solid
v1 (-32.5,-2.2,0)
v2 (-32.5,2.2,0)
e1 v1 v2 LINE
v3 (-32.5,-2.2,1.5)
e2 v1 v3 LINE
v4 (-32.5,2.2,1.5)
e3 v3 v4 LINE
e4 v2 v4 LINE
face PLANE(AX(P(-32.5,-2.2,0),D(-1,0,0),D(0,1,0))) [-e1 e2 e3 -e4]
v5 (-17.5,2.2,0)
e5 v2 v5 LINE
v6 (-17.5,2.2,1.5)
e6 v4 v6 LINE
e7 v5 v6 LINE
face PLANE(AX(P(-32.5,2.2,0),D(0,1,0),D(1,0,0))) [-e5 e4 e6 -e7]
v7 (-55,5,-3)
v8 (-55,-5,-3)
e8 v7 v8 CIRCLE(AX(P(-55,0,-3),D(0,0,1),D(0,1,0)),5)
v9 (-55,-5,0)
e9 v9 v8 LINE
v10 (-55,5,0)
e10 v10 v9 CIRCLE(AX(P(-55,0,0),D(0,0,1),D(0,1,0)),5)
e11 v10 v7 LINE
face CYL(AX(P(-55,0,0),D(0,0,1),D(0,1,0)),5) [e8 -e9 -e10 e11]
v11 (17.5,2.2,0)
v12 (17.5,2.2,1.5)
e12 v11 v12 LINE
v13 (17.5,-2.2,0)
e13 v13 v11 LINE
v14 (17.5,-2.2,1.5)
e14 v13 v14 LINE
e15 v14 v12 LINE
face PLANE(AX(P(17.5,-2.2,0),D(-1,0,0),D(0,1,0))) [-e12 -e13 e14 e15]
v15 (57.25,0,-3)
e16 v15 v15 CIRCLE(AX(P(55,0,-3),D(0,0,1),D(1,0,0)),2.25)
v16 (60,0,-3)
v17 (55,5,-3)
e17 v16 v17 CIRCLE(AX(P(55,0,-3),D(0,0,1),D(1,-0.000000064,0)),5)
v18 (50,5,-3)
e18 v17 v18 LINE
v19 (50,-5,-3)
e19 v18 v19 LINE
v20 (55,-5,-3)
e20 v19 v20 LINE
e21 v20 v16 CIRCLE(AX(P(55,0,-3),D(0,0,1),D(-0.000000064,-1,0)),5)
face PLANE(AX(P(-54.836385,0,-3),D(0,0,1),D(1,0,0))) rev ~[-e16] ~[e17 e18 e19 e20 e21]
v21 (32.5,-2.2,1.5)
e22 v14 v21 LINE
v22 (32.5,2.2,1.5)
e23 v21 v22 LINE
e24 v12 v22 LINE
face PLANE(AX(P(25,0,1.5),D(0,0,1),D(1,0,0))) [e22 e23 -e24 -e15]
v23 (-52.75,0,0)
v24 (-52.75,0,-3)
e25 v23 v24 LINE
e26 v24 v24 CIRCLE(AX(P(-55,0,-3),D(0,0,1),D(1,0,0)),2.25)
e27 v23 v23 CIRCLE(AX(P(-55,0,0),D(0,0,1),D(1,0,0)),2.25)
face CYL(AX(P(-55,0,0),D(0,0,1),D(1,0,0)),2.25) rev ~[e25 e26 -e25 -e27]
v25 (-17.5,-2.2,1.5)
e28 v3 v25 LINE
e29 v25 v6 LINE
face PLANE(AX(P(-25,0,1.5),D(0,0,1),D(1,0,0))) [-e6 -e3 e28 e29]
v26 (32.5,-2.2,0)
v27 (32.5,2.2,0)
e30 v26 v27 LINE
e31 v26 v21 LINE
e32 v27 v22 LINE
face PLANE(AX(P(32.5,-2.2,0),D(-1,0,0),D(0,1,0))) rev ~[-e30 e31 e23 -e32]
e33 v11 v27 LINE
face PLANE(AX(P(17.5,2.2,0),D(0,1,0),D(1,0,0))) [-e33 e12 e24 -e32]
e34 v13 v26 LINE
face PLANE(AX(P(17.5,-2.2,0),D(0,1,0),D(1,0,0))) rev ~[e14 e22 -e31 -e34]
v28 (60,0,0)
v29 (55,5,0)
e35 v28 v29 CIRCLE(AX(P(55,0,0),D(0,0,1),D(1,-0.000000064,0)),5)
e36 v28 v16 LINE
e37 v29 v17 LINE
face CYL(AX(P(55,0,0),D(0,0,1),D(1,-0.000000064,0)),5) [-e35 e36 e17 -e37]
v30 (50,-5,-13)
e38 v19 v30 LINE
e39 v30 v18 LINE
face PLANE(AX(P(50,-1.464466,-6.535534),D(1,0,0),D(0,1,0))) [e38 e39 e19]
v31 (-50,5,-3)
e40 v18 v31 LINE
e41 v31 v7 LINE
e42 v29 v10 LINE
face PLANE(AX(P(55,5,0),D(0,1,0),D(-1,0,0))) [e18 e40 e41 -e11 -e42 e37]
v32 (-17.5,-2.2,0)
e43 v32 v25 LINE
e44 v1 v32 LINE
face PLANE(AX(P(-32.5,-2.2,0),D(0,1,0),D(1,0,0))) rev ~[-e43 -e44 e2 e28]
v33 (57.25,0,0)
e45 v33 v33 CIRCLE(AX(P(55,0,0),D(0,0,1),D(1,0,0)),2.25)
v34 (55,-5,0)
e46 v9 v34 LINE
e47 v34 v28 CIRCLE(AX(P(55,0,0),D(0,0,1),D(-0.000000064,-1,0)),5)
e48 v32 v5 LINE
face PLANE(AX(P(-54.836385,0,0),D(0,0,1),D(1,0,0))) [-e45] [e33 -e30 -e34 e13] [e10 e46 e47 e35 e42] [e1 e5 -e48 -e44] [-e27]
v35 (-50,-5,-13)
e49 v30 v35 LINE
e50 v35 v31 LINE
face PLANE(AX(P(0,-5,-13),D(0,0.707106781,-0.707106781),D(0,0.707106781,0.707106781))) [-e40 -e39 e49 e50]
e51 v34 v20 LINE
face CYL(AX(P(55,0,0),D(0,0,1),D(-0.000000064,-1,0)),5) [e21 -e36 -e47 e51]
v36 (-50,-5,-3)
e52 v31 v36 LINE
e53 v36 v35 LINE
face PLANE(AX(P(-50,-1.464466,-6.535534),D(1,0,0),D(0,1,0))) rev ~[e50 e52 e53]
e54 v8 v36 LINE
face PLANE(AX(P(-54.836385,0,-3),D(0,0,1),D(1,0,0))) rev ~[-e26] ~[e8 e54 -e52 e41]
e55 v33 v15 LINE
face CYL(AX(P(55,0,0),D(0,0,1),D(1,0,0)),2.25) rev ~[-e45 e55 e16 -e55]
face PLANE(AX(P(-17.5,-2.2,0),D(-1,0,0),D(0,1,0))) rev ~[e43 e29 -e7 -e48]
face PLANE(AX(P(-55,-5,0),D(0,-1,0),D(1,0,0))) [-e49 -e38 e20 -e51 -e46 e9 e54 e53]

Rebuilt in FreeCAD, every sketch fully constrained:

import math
import FreeCAD as App
import Part
import Sketcher
from FreeCAD import Vector


def add_polygon(sketch, points):
    """Adds a closed chain of lines whose ends are joined by coincident constraints."""
    first, n = sketch.GeometryCount, len(points)
    for a, b in zip(points, points[1:] + points[:1]):
        sketch.addGeometry(Part.LineSegment(App.Vector(*a, 0), App.Vector(*b, 0)), False)
    for i in range(n):
        sketch.addConstraint(Sketcher.Constraint("Coincident", first + i, 2, first + (i + 1) % n, 1))

doc = App.newDocument("Part")
params = doc.addObject("Spreadsheet::Sheet", "Params")
for row, (alias, value) in enumerate([
    ("sketch1_radius", "5 mm"),
    ("sketch1_diameter", "4.5 mm"),
    ("sketch1_width", "110 mm"),
    ("pad1_length", "3 mm"),
    ("sketch2_width", "15 mm"),
    ("sketch2_height", "4.4 mm"),
    ("pad2_length", "1.5 mm"),
    ("sketch3_width", "10 mm"),
    ("pad3_length", "100 mm"),
], start=1):
    params.set(f"A{row}", alias)
    params.set(f"B{row}", "=" + value)
    params.setAlias(f"B{row}", alias)

body = doc.addObject("PartDesign::Body", "Body")

# Sketch on XY plane
sketch1 = body.newObject("Sketcher::SketchObject", "Sketch")
sketch1.AttachmentSupport = (doc.getObject("XY_Plane"), [""])
sketch1.MapMode = "FlatFace"
sketch1.addGeometry([
    Part.ArcOfCircle(Part.Circle(Vector(-55, 0, 0), Vector(0, 0, 1), 5), math.radians(90), math.radians(270)),  # 0
    Part.LineSegment(Vector(-55, -5, 0), Vector(55, -5, 0)),  # 1
    Part.ArcOfCircle(Part.Circle(Vector(55, 0, 0), Vector(0, 0, 1), 5), math.radians(-90.000004), math.radians(0.000004)),  # 2
    Part.ArcOfCircle(Part.Circle(Vector(55, 0, 0), Vector(0, 0, 1), 5), math.radians(-0.000004), math.radians(90.000004)),  # 3
    Part.LineSegment(Vector(55, 5, 0), Vector(-55, 5, 0)),  # 4
    Part.Circle(Vector(-55, 0, 0), Vector(0, 0, 1), 2.25),  # 5
    Part.Circle(Vector(55, 0, 0), Vector(0, 0, 1), 2.25),  # 6
], False)
sketch1.addConstraint([
    Sketcher.Constraint("Tangent", 0, 2, 1, 1),
    Sketcher.Constraint("Tangent", 1, 2, 2, 1),
    Sketcher.Constraint("Tangent", 2, 2, 3, 1),
    Sketcher.Constraint("Tangent", 3, 2, 4, 1),
    Sketcher.Constraint("Tangent", 4, 2, 0, 1),
    Sketcher.Constraint("Horizontal", 1),
    Sketcher.Constraint("Horizontal", 4),
    Sketcher.Constraint("Coincident", 5, 3, 0, 3),
    Sketcher.Constraint("Coincident", 6, 3, 2, 3),
    Sketcher.Constraint("Equal", 0, 2),
    Sketcher.Constraint("Equal", 5, 6),
    Sketcher.Constraint("Symmetric", 0, 3, 2, 3, -1, 1),
    Sketcher.Constraint("PointOnObject", 2, 2, -1),
    Sketcher.Constraint("Radius", 0, 5.0),
    Sketcher.Constraint("Diameter", 5, 4.5),
    Sketcher.Constraint("DistanceX", 1, 1, 1, 2, 110.0),
])
sketch1.setExpression("Constraints[13]", "Params.sketch1_radius")
sketch1.setExpression("Constraints[14]", "Params.sketch1_diameter")
sketch1.setExpression("Constraints[15]", "Params.sketch1_width")
pad1 = body.newObject("PartDesign::Pad", "Pad")
pad1.Profile = sketch1
pad1.setExpression("Length", "Params.pad1_length")
pad1.Reversed = True

# Sketch on XY plane
sketch2 = body.newObject("Sketcher::SketchObject", "Sketch001")
sketch2.AttachmentSupport = (doc.getObject("XY_Plane"), [""])
sketch2.MapMode = "FlatFace"
add_polygon(sketch2, [(-32.5, 2.2), (-32.5, -2.2), (-17.5, -2.2), (-17.5, 2.2)])  # lines 0-3
add_polygon(sketch2, [(17.5, 2.2), (17.5, -2.2), (32.5, -2.2), (32.5, 2.2)])  # lines 4-7
sketch2.addConstraint([
    Sketcher.Constraint("Vertical", 0),
    Sketcher.Constraint("Horizontal", 1),
    Sketcher.Constraint("Vertical", 2),
    Sketcher.Constraint("Horizontal", 3),
    Sketcher.Constraint("Vertical", 4),
    Sketcher.Constraint("Horizontal", 5),
    Sketcher.Constraint("Vertical", 6),
    Sketcher.Constraint("Horizontal", 7),
    Sketcher.Constraint("Symmetric", 2, 2, 4, 2, -1, 1),
    Sketcher.Constraint("Symmetric", 0, 2, 6, 2, -1, 1),
    Sketcher.Constraint("Horizontal", 1, 2, 4, 2),
    Sketcher.Constraint("DistanceX", 1, 1, 1, 2, 15.0),
    Sketcher.Constraint("DistanceY", 0, 2, 0, 1, 4.4),
    Sketcher.Constraint("DistanceX", 1, 2, 4, 2, 35.0),
])
sketch2.setExpression("Constraints[19]", "Params.sketch2_width")
sketch2.setExpression("Constraints[20]", "Params.sketch2_height")
pad2 = body.newObject("PartDesign::Pad", "Pad001")
pad2.Profile = sketch2
pad2.setExpression("Length", "Params.pad2_length")

# Sketch on YZ plane
sketch3 = body.newObject("Sketcher::SketchObject", "Sketch002")
sketch3.AttachmentSupport = (doc.getObject("YZ_Plane"), [""])
sketch3.MapMode = "FlatFace"
add_polygon(sketch3, [(5, -3), (-5, -3), (-5, -13)])  # lines 0-2
sketch3.addConstraint([
    Sketcher.Constraint("Horizontal", 0),
    Sketcher.Constraint("Vertical", 1),
    Sketcher.Constraint("Equal", 0, 1),
    Sketcher.Constraint("DistanceX", 0, 2, 0, 1, 10.0),
    Sketcher.Constraint("DistanceX", 0, 2, -1, 1, 5.0),
    Sketcher.Constraint("DistanceY", 0, 2, -1, 1, 3.0),
])
sketch3.setExpression("Constraints[6]", "Params.sketch3_width")
pad3 = body.newObject("PartDesign::Pad", "Pad002")
pad3.Profile = sketch3
pad3.setExpression("Length", "Params.pad3_length")
pad3.Midplane = True

doc.recompute()
